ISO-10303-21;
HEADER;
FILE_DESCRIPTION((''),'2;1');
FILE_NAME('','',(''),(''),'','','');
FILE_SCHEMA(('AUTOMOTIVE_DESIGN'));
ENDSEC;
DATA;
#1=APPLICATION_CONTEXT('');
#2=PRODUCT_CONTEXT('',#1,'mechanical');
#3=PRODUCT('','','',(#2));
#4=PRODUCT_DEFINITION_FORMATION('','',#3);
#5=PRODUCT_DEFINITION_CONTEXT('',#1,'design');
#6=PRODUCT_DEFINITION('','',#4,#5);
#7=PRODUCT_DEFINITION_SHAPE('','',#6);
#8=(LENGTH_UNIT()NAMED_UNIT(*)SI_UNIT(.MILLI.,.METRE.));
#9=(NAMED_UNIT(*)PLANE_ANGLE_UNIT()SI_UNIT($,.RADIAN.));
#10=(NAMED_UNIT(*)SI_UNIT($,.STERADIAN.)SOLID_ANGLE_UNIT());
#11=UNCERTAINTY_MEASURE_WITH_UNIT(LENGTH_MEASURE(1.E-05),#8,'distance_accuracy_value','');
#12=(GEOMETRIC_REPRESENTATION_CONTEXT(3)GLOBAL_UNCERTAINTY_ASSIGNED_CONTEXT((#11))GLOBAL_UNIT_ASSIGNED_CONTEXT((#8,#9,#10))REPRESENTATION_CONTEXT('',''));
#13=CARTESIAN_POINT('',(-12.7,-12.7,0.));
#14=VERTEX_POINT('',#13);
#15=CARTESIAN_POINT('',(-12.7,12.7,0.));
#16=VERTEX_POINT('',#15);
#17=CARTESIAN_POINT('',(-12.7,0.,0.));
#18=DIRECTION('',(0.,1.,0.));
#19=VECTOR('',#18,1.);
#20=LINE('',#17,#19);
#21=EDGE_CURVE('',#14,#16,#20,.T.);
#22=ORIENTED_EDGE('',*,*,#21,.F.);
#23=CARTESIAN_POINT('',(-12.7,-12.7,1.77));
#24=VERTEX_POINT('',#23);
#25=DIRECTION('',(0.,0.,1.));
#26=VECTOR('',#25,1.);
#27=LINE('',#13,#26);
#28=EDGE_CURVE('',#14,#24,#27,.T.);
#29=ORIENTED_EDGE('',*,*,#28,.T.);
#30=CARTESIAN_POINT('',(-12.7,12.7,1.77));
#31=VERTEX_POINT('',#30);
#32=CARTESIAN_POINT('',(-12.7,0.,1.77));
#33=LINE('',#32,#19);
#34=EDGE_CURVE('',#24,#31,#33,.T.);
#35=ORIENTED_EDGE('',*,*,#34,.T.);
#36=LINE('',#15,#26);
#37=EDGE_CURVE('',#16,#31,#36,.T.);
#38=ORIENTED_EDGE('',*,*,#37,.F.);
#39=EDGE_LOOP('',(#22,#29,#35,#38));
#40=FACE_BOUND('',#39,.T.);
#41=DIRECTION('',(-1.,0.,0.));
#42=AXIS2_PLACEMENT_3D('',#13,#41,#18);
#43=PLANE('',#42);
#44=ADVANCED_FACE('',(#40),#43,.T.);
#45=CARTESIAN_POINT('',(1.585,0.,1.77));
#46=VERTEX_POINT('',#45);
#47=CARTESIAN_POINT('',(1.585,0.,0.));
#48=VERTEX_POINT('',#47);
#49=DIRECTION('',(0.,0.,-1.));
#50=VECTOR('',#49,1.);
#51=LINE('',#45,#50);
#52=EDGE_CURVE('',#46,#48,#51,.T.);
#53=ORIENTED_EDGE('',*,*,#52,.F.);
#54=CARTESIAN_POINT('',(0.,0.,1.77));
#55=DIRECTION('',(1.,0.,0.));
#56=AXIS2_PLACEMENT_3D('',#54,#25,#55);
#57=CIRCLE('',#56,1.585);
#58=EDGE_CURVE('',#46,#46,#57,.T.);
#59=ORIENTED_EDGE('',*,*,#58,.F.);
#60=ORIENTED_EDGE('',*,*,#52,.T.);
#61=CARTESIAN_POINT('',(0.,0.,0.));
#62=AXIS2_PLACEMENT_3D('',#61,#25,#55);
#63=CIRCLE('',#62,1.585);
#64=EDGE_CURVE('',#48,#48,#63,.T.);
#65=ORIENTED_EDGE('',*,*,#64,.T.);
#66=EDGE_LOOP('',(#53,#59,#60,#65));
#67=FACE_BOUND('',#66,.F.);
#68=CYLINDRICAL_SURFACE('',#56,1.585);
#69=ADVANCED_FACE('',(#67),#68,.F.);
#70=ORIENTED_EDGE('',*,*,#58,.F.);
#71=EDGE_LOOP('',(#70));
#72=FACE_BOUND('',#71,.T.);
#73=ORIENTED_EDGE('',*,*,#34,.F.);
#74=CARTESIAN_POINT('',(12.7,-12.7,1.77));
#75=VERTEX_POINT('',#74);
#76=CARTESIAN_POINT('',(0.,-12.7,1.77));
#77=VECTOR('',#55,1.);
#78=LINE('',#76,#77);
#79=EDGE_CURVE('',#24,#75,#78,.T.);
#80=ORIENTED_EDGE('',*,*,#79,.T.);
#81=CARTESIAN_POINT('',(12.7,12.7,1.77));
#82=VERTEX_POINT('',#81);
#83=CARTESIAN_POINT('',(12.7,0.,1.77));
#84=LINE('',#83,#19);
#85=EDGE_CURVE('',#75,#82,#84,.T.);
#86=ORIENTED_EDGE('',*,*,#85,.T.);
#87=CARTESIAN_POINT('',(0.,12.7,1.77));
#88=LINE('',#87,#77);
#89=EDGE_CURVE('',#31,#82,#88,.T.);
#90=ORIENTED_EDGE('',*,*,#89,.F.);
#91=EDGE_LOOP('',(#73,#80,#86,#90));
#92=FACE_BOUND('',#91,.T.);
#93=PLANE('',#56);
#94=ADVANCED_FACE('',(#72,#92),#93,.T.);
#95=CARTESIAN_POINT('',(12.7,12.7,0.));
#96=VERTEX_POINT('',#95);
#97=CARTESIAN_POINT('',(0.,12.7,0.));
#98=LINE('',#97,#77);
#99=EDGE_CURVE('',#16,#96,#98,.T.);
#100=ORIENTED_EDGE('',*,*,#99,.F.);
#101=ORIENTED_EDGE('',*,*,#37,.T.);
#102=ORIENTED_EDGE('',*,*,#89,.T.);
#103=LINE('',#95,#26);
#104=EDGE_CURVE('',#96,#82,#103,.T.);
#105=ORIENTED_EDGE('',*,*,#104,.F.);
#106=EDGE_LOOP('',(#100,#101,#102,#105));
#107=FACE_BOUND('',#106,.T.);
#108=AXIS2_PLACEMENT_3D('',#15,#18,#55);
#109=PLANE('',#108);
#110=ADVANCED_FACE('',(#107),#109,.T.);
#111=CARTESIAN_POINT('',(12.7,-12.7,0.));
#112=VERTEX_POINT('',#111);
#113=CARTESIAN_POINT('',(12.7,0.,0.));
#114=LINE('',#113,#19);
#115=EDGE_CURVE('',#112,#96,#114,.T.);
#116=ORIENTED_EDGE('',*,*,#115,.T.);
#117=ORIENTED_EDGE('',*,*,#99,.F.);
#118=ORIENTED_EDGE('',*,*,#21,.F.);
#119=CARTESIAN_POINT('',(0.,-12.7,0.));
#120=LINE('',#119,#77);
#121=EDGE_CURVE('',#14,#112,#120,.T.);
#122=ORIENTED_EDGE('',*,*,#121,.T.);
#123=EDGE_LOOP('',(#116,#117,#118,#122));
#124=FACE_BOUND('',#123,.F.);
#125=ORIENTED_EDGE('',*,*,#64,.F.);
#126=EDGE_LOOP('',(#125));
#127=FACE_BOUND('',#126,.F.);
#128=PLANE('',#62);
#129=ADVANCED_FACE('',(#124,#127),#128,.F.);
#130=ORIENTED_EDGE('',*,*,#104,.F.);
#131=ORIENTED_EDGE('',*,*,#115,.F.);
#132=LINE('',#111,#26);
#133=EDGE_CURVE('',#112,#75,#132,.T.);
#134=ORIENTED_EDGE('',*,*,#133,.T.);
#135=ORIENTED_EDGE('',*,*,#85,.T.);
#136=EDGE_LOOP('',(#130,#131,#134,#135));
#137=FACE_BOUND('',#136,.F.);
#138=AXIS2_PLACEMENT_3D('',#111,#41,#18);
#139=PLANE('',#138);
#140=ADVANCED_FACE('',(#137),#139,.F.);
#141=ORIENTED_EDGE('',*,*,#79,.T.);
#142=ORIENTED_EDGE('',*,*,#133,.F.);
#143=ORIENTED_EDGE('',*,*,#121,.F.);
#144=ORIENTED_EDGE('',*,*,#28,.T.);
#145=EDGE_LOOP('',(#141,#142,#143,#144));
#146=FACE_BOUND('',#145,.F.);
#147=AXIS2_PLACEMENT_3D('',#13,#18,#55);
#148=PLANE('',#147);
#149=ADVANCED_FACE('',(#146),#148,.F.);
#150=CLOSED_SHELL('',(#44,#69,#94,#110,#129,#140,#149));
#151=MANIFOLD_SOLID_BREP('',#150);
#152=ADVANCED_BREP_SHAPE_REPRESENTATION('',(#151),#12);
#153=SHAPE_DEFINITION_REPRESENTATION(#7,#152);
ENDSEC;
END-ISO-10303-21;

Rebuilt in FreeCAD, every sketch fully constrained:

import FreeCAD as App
import Part
import Sketcher
from FreeCAD import Vector
Q = App.Units.Quantity


def add_polygon(sketch, points):
    """Adds a closed chain of lines whose ends are joined by coincident constraints."""
    first, n = sketch.GeometryCount, len(points)
    for a, b in zip(points, points[1:] + points[:1]):
        sketch.addGeometry(Part.LineSegment(App.Vector(*a, 0), App.Vector(*b, 0)), False)
    for i in range(n):
        sketch.addConstraint(Sketcher.Constraint("Coincident", first + i, 2, first + (i + 1) % n, 1))

doc = App.newDocument("Part")
params = doc.addObject("Spreadsheet::Sheet", "Params")
for row, (alias, value) in enumerate([
    ("sketch1_width", "1 in"),
    ("pad1_length", "1.77 mm"),
], start=1):
    params.set(f"A{row}", alias)
    params.set(f"B{row}", "=" + value)
    params.setAlias(f"B{row}", alias)

body = doc.addObject("PartDesign::Body", "Body")

# Sketch on XY plane
sketch1 = doc.addObject("Sketcher::SketchObject", "Sketch")
body.addObject(sketch1)
sketch1.AttachmentSupport = (doc.XY_Plane, [""])
sketch1.MapMode = "FlatFace"
add_polygon(sketch1, [(-13, 13), (-13, -13), (13, -13), (13, 13)])  # lines 0-3
sketch1.addConstraint(Sketcher.Constraint("Vertical", 0))
sketch1.addConstraint(Sketcher.Constraint("Horizontal", 1))
sketch1.addConstraint(Sketcher.Constraint("Vertical", 2))
sketch1.addConstraint(Sketcher.Constraint("Horizontal", 3))
sketch1.addConstraint(Sketcher.Constraint("Symmetric", 0, 2, 2, 2, -1, 1))
sketch1.addConstraint(Sketcher.Constraint("Equal", 3, 0))
sketch1.addConstraint(Sketcher.Constraint("DistanceX", 1, 1, 1, 2, Q("1 in")))
sketch1.setExpression("Constraints[10]", "Params.sketch1_width")
pad1 = doc.addObject("PartDesign::Pad", "Pad")
body.addObject(pad1)
pad1.Profile = sketch1
pad1.setExpression("Length", "Params.pad1_length")

# Sketch on XY plane
sketch2 = doc.addObject("Sketcher::SketchObject", "Sketch001")
body.addObject(sketch2)
sketch2.AttachmentSupport = (doc.XY_Plane, [""])
sketch2.MapMode = "FlatFace"
sketch2.AttachmentOffset = App.Placement(Vector(0, 0, 1.77), App.Rotation())
sketch2.addGeometry(Part.Circle(Vector(0, 0, 0), Vector(0, 0, 1), 1.6), False)
sketch2.addConstraint(Sketcher.Constraint("Coincident", 0, 3, -1, 1))
sketch2.addConstraint(Sketcher.Constraint("Diameter", 0, Q("3.17 mm")))
pocket1 = doc.addObject("PartDesign::Pocket", "Pocket")
body.addObject(pocket1)
pocket1.Profile = sketch2
pocket1.Type = "ThroughAll"

doc.recompute()
